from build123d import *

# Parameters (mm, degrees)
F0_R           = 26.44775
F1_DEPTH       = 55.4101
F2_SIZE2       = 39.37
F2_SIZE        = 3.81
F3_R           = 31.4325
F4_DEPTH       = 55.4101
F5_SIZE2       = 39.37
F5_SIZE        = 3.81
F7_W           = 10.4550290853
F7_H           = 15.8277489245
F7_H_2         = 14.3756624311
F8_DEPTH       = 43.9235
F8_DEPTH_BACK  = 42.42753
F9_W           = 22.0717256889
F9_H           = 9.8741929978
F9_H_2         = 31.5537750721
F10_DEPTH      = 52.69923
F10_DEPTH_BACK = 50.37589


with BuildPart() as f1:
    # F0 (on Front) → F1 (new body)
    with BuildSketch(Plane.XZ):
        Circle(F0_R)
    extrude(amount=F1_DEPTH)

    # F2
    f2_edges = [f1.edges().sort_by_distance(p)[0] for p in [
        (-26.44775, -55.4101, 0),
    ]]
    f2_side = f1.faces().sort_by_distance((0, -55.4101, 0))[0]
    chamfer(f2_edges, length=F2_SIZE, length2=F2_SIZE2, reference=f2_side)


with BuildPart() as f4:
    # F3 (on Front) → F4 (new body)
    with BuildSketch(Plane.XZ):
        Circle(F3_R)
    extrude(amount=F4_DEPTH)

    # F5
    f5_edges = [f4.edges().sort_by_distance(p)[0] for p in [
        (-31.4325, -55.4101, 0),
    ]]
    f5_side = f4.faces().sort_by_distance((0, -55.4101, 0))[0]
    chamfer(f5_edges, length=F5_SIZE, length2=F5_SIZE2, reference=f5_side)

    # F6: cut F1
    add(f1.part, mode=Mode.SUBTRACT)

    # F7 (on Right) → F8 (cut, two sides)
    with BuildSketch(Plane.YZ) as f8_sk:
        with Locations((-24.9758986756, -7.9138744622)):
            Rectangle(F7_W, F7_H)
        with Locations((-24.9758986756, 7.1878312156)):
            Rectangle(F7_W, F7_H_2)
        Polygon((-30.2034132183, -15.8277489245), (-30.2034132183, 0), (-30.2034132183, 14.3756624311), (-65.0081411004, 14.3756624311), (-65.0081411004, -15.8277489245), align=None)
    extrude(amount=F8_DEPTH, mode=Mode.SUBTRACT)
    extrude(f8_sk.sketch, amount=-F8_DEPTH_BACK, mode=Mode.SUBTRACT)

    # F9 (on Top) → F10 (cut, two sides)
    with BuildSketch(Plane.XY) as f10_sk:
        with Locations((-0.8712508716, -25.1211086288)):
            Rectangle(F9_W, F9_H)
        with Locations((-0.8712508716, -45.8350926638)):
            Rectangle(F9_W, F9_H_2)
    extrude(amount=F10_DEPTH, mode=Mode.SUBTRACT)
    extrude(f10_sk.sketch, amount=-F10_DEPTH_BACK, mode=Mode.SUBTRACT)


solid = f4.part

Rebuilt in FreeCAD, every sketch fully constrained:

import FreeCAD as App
import Part
import Sketcher

V = App.Vector
Q = App.Units.Quantity


def edges_at(feature, points):
    """Names of the edges that pass closest to the given points."""
    edges = feature.Shape.Edges
    near = lambda p: min(range(len(edges)), key=lambda i: edges[i].distToShape(Part.Vertex(*p))[0])
    return sorted({f"Edge{near(p) + 1}" for p in points})

doc = App.newDocument("Part")
params = doc.addObject("Spreadsheet::Sheet", "Params")
for row, (alias, value) in enumerate([
    ("pad1_length", "2.1815 in"),
    ("chamfer_size", "0.15 in"),
    ("chamfer_size2", "1.55 in"),
    ("sketch2_diameter", "2.475 in"),
    ("pad2_length", "2.1815 in"),
    ("chamfer2_size", "0.15 in"),
    ("chamfer2_size2", "1.55 in"),
], start=1):
    params.set(f"A{row}", alias)
    params.set(f"B{row}", "=" + value)
    params.setAlias(f"B{row}", alias)

body = doc.addObject("PartDesign::Body", "Body")

# Sketch on XZ plane
sketch1 = body.newObject("Sketcher::SketchObject", "Sketch")
sketch1.AttachmentSupport = (doc.getObject("XZ_Plane"), [""])
sketch1.MapMode = "FlatFace"
sketch1.addGeometry(Part.Circle(V(0, 0, 0), V(0, 0, 1), 26), False)
sketch1.addConstraint(Sketcher.Constraint("Coincident", 0, 3, -1, 1))
sketch1.addConstraint(Sketcher.Constraint("Diameter", 0, Q("2.0825 in")))
pad1 = body.newObject("PartDesign::Pad", "Pad")
pad1.Profile = sketch1
pad1.setExpression("Length", "Params.pad1_length")
doc.recompute()

chamfer = body.newObject("PartDesign::Chamfer", "Chamfer")
chamfer.Base = (pad1, edges_at(pad1, [(-26.448, -55.41, 0)]))
chamfer.ChamferType = "Two distances"
chamfer.setExpression("Size", "Params.chamfer_size")
chamfer.setExpression("Size2", "Params.chamfer_size2")
chamfer.FlipDirection = True
body2 = doc.addObject("PartDesign::Body", "Body001")

# Sketch on XZ plane
sketch2 = body2.newObject("Sketcher::SketchObject", "Sketch001")
sketch2.AttachmentSupport = (doc.getObject("XZ_Plane001"), [""])
sketch2.MapMode = "FlatFace"
sketch2.addGeometry(Part.Circle(V(0, 0, 0), V(0, 0, 1), 31), False)
sketch2.addConstraint(Sketcher.Constraint("Coincident", 0, 3, -1, 1))
sketch2.addConstraint(Sketcher.Constraint("Diameter", 0, Q("2.475 in")))
sketch2.setExpression("Constraints[1]", "Params.sketch2_diameter")
pad2 = body2.newObject("PartDesign::Pad", "Pad001")
pad2.Profile = sketch2
pad2.setExpression("Length", "Params.pad2_length")
doc.recompute()

chamfer2 = body2.newObject("PartDesign::Chamfer", "Chamfer001")
chamfer2.Base = (pad2, edges_at(pad2, [(-31.433, -55.41, 0)]))
chamfer2.ChamferType = "Two distances"
chamfer2.setExpression("Size", "Params.chamfer2_size")
chamfer2.setExpression("Size2", "Params.chamfer2_size2")
chamfer2.FlipDirection = True
doc.recompute()

boolean = body2.newObject("PartDesign::Boolean", "Boolean")
boolean.Type = "Cut"
boolean.addObjects([body])

# Sketch on YZ plane
sketch3 = body2.newObject("Sketcher::SketchObject", "Sketch002")
sketch3.AttachmentSupport = (doc.getObject("YZ_Plane001"), [""])
sketch3.MapMode = "FlatFace"
sketch3.addGeometry(Part.LineSegment(V(-30, -16, 0), V(-20, -16, 0)), False)
sketch3.addGeometry(Part.LineSegment(V(-20, -16, 0), V(-20, 14, 0)), False)
sketch3.addGeometry(Part.LineSegment(V(-20, 14, 0), V(-30, 14, 0)), False)
sketch3.addGeometry(Part.LineSegment(V(-30, 14, 0), V(-65, 14, 0)), False)
sketch3.addGeometry(Part.LineSegment(V(-65, 14, 0), V(-65, -16, 0)), False)
sketch3.addGeometry(Part.LineSegment(V(-65, -16, 0), V(-30, -16, 0)), False)
sketch3.addConstraint(Sketcher.Constraint("Coincident", 0, 2, 1, 1))
sketch3.addConstraint(Sketcher.Constraint("Coincident", 1, 2, 2, 1))
sketch3.addConstraint(Sketcher.Constraint("Coincident", 2, 2, 3, 1))
sketch3.addConstraint(Sketcher.Constraint("Coincident", 3, 2, 4, 1))
sketch3.addConstraint(Sketcher.Constraint("Coincident", 4, 2, 5, 1))
sketch3.addConstraint(Sketcher.Constraint("Coincident", 5, 2, 0, 1))
sketch3.addConstraint(Sketcher.Constraint("Horizontal", 0))
sketch3.addConstraint(Sketcher.Constraint("Vertical", 1))
sketch3.addConstraint(Sketcher.Constraint("Horizontal", 2))
sketch3.addConstraint(Sketcher.Constraint("Horizontal", 3))
sketch3.addConstraint(Sketcher.Constraint("Vertical", 4))
sketch3.addConstraint(Sketcher.Constraint("Horizontal", 5))
sketch3.addConstraint(Sketcher.Constraint("Vertical", 2, 2, 5, 2))
sketch3.addConstraint(Sketcher.Constraint("DistanceX", 0, 1, 0, 2, 10.455029))
sketch3.addConstraint(Sketcher.Constraint("DistanceY", 1, 1, 1, 2, 30.203411))
sketch3.addConstraint(Sketcher.Constraint("DistanceX", 3, 2, 3, 1, 34.804728))
sketch3.addConstraint(Sketcher.Constraint("DistanceY", 0, 2, -1, 1, 15.827749))
sketch3.addConstraint(Sketcher.Constraint("DistanceX", 3, 2, -1, 1, 65.008141))
pocket1 = body2.newObject("PartDesign::Pocket", "Pocket")
pocket1.Profile = sketch3
pocket1.Type = "ThroughAll"
pocket1.Midplane = True

# Sketch on XY plane
sketch4 = body2.newObject("Sketcher::SketchObject", "Sketch003")
sketch4.AttachmentSupport = (doc.getObject("XY_Plane001"), [""])
sketch4.MapMode = "FlatFace"
sketch4.addGeometry(Part.LineSegment(V(-12, -20, 0), V(-12, -62, 0)), False)
sketch4.addGeometry(Part.LineSegment(V(-12, -62, 0), V(10, -62, 0)), False)
sketch4.addGeometry(Part.LineSegment(V(10, -62, 0), V(10, -20, 0)), False)
sketch4.addGeometry(Part.LineSegment(V(10, -20, 0), V(-12, -20, 0)), False)
sketch4.addConstraint(Sketcher.Constraint("Coincident", 0, 2, 1, 1))
sketch4.addConstraint(Sketcher.Constraint("Coincident", 1, 2, 2, 1))
sketch4.addConstraint(Sketcher.Constraint("Coincident", 2, 2, 3, 1))
sketch4.addConstraint(Sketcher.Constraint("Coincident", 3, 2, 0, 1))
sketch4.addConstraint(Sketcher.Constraint("Vertical", 0))
sketch4.addConstraint(Sketcher.Constraint("Horizontal", 1))
sketch4.addConstraint(Sketcher.Constraint("Vertical", 2))
sketch4.addConstraint(Sketcher.Constraint("Horizontal", 3))
sketch4.addConstraint(Sketcher.Constraint("DistanceY", 0, 2, 0, 1, 41.427968))
sketch4.addConstraint(Sketcher.Constraint("DistanceX", 1, 1, 1, 2, 22.071726))
sketch4.addConstraint(Sketcher.Constraint("DistanceY", 0, 2, -1, 1, 61.61198))
sketch4.addConstraint(Sketcher.Constraint("DistanceX", -1, 1, 1, 2, 10.164612))
pocket2 = body2.newObject("PartDesign::Pocket", "Pocket001")
pocket2.Profile = sketch4
pocket2.Type = "ThroughAll"
pocket2.Midplane = True

doc.recompute()
